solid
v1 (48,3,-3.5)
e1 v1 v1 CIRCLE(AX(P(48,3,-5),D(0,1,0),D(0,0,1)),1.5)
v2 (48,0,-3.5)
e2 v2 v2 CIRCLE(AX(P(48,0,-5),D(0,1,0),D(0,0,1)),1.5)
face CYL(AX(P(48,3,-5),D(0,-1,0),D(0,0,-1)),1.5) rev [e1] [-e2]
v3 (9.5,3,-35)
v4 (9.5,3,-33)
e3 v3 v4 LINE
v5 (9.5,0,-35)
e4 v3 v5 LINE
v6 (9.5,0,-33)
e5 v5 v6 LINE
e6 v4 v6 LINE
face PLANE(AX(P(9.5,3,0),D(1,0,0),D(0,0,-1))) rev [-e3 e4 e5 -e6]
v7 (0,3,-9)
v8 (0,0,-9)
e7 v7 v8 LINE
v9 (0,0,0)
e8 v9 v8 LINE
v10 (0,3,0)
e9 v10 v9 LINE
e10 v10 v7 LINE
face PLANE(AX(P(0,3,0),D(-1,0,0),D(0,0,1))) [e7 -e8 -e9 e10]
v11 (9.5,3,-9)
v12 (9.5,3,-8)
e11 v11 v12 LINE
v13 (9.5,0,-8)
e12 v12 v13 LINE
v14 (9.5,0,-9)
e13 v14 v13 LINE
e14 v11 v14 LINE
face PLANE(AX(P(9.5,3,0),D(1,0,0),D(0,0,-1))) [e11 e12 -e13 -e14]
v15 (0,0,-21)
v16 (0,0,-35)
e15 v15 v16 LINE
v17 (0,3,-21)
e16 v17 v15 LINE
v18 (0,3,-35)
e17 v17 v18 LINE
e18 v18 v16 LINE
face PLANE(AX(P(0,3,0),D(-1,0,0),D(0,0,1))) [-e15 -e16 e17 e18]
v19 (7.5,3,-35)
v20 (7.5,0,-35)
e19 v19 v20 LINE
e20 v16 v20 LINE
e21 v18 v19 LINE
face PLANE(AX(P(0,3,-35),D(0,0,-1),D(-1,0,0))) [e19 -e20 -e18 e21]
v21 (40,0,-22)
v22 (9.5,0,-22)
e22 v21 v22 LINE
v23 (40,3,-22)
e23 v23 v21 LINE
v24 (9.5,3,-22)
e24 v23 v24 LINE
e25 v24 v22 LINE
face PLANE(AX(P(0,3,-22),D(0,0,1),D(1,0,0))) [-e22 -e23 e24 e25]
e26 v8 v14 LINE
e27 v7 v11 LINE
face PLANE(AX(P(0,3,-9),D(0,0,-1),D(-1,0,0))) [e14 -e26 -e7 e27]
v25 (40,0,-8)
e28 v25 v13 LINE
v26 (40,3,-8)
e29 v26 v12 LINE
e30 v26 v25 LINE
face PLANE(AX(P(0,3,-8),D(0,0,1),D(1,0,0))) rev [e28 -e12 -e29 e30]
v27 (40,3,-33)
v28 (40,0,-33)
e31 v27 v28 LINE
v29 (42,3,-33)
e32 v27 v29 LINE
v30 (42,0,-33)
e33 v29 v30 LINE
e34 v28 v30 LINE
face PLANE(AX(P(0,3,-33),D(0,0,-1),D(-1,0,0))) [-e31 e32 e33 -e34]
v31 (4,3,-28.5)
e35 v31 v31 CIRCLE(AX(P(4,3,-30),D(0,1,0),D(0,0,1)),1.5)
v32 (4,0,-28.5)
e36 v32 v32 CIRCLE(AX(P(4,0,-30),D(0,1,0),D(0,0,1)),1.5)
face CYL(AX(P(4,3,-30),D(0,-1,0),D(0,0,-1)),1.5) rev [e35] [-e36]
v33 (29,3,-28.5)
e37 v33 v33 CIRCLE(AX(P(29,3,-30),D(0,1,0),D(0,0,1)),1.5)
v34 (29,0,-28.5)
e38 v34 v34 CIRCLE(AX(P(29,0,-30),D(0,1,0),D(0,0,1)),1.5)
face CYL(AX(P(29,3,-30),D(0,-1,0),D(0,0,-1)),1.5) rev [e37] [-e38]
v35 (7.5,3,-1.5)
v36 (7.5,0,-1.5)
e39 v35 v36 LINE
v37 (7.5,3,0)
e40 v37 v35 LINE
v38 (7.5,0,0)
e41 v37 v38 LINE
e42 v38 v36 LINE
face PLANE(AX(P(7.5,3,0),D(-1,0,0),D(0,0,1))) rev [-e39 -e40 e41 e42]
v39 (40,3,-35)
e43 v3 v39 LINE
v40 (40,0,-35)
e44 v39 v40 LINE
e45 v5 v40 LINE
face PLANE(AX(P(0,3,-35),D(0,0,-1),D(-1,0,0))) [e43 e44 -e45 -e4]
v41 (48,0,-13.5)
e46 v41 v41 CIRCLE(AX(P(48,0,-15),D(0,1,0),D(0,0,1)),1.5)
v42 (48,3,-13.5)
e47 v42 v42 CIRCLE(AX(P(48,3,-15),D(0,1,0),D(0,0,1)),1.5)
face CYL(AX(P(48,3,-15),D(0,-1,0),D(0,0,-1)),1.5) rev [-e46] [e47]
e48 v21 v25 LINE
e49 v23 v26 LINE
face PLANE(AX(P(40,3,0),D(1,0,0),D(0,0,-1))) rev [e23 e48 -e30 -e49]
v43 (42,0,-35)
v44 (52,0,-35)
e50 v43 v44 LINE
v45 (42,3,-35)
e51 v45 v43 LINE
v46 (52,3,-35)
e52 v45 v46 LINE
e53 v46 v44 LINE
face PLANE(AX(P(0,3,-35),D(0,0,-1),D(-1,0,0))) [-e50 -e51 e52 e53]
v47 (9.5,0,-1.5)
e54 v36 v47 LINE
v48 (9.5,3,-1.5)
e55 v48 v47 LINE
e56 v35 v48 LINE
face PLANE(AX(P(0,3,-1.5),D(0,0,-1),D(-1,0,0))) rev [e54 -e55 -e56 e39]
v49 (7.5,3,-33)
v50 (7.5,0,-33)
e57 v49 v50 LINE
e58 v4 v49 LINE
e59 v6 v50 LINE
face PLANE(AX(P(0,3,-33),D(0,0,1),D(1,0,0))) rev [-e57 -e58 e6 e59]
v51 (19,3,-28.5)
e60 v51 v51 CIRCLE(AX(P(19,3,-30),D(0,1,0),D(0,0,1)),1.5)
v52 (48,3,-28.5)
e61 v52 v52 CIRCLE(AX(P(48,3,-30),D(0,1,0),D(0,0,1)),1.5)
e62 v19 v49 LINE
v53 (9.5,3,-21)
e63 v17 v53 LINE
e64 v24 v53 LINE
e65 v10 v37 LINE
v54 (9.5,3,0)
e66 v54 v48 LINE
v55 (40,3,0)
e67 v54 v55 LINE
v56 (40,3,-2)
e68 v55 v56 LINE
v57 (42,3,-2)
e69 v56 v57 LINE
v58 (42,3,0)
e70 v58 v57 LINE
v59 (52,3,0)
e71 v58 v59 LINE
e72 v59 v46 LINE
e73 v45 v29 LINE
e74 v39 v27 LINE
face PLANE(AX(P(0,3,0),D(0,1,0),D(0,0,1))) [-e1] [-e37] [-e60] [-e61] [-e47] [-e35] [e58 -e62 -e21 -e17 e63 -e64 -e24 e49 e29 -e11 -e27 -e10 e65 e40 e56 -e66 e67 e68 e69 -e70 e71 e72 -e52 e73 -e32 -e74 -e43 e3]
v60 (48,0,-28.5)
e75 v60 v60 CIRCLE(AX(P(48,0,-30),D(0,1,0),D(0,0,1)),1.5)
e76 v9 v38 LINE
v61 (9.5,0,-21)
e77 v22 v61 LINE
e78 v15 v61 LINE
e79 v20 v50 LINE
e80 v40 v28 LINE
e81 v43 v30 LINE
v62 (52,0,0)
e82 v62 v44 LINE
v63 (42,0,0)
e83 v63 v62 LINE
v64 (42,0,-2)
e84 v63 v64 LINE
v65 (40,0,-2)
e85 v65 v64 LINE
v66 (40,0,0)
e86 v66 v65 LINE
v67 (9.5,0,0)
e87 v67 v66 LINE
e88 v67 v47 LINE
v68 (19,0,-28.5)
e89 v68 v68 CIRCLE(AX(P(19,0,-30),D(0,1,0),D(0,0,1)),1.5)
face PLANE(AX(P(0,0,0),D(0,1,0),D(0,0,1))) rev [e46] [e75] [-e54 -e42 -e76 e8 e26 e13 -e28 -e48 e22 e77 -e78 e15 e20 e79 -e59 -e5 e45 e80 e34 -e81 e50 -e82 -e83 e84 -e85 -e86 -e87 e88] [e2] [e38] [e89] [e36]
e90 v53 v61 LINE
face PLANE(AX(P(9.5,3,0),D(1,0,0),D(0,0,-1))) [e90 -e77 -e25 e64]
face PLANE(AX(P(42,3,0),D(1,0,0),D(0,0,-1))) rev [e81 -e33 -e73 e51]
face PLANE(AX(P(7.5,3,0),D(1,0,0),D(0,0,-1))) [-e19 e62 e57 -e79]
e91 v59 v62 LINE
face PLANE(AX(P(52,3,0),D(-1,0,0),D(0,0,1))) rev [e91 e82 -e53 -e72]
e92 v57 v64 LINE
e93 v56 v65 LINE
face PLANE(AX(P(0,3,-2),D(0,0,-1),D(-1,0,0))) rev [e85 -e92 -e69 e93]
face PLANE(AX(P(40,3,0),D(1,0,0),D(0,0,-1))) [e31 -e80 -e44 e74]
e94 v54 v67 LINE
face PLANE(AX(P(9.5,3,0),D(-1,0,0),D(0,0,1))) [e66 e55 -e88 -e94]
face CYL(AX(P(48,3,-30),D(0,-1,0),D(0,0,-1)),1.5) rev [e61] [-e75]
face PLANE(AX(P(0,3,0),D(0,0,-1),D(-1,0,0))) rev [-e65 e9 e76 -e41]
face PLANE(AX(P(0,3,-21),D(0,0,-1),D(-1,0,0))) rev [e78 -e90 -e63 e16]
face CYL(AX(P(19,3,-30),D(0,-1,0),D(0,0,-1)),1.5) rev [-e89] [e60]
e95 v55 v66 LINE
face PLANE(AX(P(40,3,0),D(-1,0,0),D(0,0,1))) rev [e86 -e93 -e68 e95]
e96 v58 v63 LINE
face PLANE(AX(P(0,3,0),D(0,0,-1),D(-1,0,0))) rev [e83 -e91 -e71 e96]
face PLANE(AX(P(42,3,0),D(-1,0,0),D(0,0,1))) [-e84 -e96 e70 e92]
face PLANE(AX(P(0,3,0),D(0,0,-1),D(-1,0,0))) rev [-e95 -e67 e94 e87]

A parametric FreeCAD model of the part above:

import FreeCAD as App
import Part
import Sketcher
Q = App.Units.Quantity


def add_polygon(sketch, points):
    """Adds a closed chain of lines whose ends are joined by coincident constraints."""
    first, n = sketch.GeometryCount, len(points)
    for a, b in zip(points, points[1:] + points[:1]):
        sketch.addGeometry(Part.LineSegment(App.Vector(*a, 0), App.Vector(*b, 0)), False)
    for i in range(n):
        sketch.addConstraint(Sketcher.Constraint("Coincident", first + i, 2, first + (i + 1) % n, 1))

doc = App.newDocument("Part")
body = doc.addObject("PartDesign::Body", "Body")

# Sketch on XZ plane
sketch1 = body.newObject("Sketcher::SketchObject", "Sketch")
sketch1.AttachmentSupport = (doc.getObject("XZ_Plane"), [""])
sketch1.MapMode = "FlatFace"
add_polygon(sketch1, [(0, -9), (0, 0), (7.5, 0), (7.5, -1.5), (9.5, -1.5), (9.5, 0), (40, 0), (40, -2), (42, -2), (42, 0), (52, 0), (52, -35), (42, -35), (42, -33), (40, -33), (40, -35), (9.5, -35), (9.5, -33), (7.5, -33), (7.5, -35), (0, -35), (0, -21), (9.5, -21), (9.5, -22), (40, -22), (40, -8), (9.5, -8), (9.5, -9)])  # lines 0-27
sketch1.addGeometry(Part.Circle(App.Vector(48, -5, 0), App.Vector(0, 0, 1), 1.5), False)  # 28
sketch1.addGeometry(Part.Circle(App.Vector(48, -15, 0), App.Vector(0, 0, 1), 1.5), False)  # 29
sketch1.addGeometry(Part.Circle(App.Vector(4, -30, 0), App.Vector(0, 0, 1), 1.5), False)  # 30
sketch1.addGeometry(Part.Circle(App.Vector(19, -30, 0), App.Vector(0, 0, 1), 1.5), False)  # 31
sketch1.addGeometry(Part.Circle(App.Vector(29, -30, 0), App.Vector(0, 0, 1), 1.5), False)  # 32
sketch1.addGeometry(Part.Circle(App.Vector(48, -30, 0), App.Vector(0, 0, 1), 1.5), False)  # 33
sketch1.addConstraint([
    Sketcher.Constraint("Vertical", 0),
    Sketcher.Constraint("Horizontal", 1),
    Sketcher.Constraint("Vertical", 2),
    Sketcher.Constraint("Horizontal", 3),
    Sketcher.Constraint("Vertical", 4),
    Sketcher.Constraint("Horizontal", 5),
    Sketcher.Constraint("Vertical", 6),
    Sketcher.Constraint("Horizontal", 7),
    Sketcher.Constraint("Vertical", 8),
    Sketcher.Constraint("Horizontal", 9),
    Sketcher.Constraint("Vertical", 10),
    Sketcher.Constraint("Horizontal", 11),
    Sketcher.Constraint("Vertical", 12),
    Sketcher.Constraint("Horizontal", 13),
    Sketcher.Constraint("Vertical", 14),
    Sketcher.Constraint("Horizontal", 15),
    Sketcher.Constraint("Vertical", 16),
    Sketcher.Constraint("Horizontal", 17),
    Sketcher.Constraint("Vertical", 18),
    Sketcher.Constraint("Horizontal", 19),
    Sketcher.Constraint("Vertical", 20),
    Sketcher.Constraint("Horizontal", 21),
    Sketcher.Constraint("Vertical", 22),
    Sketcher.Constraint("Horizontal", 23),
    Sketcher.Constraint("Vertical", 24),
    Sketcher.Constraint("Horizontal", 25),
    Sketcher.Constraint("Vertical", 26),
    Sketcher.Constraint("Horizontal", 27),
    Sketcher.Constraint("Coincident", 0, 2, -1, 1),
    Sketcher.Constraint("Equal", 28, 29),
    Sketcher.Constraint("Equal", 29, 30),
    Sketcher.Constraint("Equal", 30, 31),
    Sketcher.Constraint("Equal", 31, 32),
    Sketcher.Constraint("Equal", 32, 33),
    Sketcher.Constraint("PointOnObject", 4, 2, -1),
    Sketcher.Constraint("PointOnObject", 8, 2, -1),
    Sketcher.Constraint("PointOnObject", 19, 2, -2),
    Sketcher.Constraint("Horizontal", 30, 3, 31, 3),
    Sketcher.Constraint("Horizontal", 31, 3, 32, 3),
    Sketcher.Constraint("Horizontal", 32, 3, 33, 3),
    Sketcher.Constraint("Horizontal", 11, 2, 14, 2),
    Sketcher.Constraint("Horizontal", 13, 2, 16, 2),
    Sketcher.Constraint("Horizontal", 15, 2, 18, 2),
    Sketcher.Constraint("Vertical", 28, 3, 29, 3),
    Sketcher.Constraint("Vertical", 29, 3, 33, 3),
    Sketcher.Constraint("Vertical", 8, 2, 11, 2),
    Sketcher.Constraint("Vertical", 6, 2, 13, 2),
    Sketcher.Constraint("Vertical", 4, 2, 15, 2),
    Sketcher.Constraint("Vertical", 2, 2, 17, 2),
    Sketcher.Constraint("Vertical", 16, 2, 21, 2),
    Sketcher.Constraint("Vertical", 14, 2, 23, 2),
    Sketcher.Constraint("Vertical", 22, 2, 25, 2),
    Sketcher.Constraint("Equal", 3, 7),
    Sketcher.Constraint("Equal", 17, 6),
    Sketcher.Constraint("Equal", 8, 12),
    Sketcher.Constraint("Equal", 20, 24),
    Sketcher.Constraint("Equal", 22, 26),
    Sketcher.Constraint("Diameter", 28, Q("3 mm")),
    Sketcher.Constraint("DistanceX", 3, 1, 3, 2, Q("2 mm")),
    Sketcher.Constraint("DistanceX", 9, 1, 9, 2, Q("10 mm")),
    Sketcher.Constraint("DistanceY", 0, 1, 0, 2, Q("9 mm")),
    Sketcher.Constraint("DistanceY", 10, 2, 10, 1, Q("35 mm")),
    Sketcher.Constraint("DistanceY", 20, 1, 20, 2, Q("14 mm")),
    Sketcher.Constraint("DistanceX", 1, 1, 1, 2, Q("7.5 mm")),
    Sketcher.Constraint("DistanceX", 5, 1, 5, 2, Q("30.5 mm")),
    Sketcher.Constraint("DistanceY", 2, 2, 2, 1, Q("1.5 mm")),
    Sketcher.Constraint("DistanceX", -1, 1, 28, 3, Q("48 mm")),
    Sketcher.Constraint("DistanceY", 28, 3, -1, 1, Q("5 mm")),
    Sketcher.Constraint("DistanceY", 29, 3, -1, 1, Q("15 mm")),
    Sketcher.Constraint("DistanceX", -1, 1, 30, 3, Q("4 mm")),
    Sketcher.Constraint("DistanceY", 30, 3, -1, 1, Q("30 mm")),
    Sketcher.Constraint("DistanceX", -1, 1, 31, 3, Q("19 mm")),
    Sketcher.Constraint("DistanceX", -1, 1, 32, 3, Q("29 mm")),
])
pad1 = body.newObject("PartDesign::Pad", "Pad")
pad1.Profile = sketch1
pad1.Length = 3
pad1.Reversed = True

doc.recompute()
